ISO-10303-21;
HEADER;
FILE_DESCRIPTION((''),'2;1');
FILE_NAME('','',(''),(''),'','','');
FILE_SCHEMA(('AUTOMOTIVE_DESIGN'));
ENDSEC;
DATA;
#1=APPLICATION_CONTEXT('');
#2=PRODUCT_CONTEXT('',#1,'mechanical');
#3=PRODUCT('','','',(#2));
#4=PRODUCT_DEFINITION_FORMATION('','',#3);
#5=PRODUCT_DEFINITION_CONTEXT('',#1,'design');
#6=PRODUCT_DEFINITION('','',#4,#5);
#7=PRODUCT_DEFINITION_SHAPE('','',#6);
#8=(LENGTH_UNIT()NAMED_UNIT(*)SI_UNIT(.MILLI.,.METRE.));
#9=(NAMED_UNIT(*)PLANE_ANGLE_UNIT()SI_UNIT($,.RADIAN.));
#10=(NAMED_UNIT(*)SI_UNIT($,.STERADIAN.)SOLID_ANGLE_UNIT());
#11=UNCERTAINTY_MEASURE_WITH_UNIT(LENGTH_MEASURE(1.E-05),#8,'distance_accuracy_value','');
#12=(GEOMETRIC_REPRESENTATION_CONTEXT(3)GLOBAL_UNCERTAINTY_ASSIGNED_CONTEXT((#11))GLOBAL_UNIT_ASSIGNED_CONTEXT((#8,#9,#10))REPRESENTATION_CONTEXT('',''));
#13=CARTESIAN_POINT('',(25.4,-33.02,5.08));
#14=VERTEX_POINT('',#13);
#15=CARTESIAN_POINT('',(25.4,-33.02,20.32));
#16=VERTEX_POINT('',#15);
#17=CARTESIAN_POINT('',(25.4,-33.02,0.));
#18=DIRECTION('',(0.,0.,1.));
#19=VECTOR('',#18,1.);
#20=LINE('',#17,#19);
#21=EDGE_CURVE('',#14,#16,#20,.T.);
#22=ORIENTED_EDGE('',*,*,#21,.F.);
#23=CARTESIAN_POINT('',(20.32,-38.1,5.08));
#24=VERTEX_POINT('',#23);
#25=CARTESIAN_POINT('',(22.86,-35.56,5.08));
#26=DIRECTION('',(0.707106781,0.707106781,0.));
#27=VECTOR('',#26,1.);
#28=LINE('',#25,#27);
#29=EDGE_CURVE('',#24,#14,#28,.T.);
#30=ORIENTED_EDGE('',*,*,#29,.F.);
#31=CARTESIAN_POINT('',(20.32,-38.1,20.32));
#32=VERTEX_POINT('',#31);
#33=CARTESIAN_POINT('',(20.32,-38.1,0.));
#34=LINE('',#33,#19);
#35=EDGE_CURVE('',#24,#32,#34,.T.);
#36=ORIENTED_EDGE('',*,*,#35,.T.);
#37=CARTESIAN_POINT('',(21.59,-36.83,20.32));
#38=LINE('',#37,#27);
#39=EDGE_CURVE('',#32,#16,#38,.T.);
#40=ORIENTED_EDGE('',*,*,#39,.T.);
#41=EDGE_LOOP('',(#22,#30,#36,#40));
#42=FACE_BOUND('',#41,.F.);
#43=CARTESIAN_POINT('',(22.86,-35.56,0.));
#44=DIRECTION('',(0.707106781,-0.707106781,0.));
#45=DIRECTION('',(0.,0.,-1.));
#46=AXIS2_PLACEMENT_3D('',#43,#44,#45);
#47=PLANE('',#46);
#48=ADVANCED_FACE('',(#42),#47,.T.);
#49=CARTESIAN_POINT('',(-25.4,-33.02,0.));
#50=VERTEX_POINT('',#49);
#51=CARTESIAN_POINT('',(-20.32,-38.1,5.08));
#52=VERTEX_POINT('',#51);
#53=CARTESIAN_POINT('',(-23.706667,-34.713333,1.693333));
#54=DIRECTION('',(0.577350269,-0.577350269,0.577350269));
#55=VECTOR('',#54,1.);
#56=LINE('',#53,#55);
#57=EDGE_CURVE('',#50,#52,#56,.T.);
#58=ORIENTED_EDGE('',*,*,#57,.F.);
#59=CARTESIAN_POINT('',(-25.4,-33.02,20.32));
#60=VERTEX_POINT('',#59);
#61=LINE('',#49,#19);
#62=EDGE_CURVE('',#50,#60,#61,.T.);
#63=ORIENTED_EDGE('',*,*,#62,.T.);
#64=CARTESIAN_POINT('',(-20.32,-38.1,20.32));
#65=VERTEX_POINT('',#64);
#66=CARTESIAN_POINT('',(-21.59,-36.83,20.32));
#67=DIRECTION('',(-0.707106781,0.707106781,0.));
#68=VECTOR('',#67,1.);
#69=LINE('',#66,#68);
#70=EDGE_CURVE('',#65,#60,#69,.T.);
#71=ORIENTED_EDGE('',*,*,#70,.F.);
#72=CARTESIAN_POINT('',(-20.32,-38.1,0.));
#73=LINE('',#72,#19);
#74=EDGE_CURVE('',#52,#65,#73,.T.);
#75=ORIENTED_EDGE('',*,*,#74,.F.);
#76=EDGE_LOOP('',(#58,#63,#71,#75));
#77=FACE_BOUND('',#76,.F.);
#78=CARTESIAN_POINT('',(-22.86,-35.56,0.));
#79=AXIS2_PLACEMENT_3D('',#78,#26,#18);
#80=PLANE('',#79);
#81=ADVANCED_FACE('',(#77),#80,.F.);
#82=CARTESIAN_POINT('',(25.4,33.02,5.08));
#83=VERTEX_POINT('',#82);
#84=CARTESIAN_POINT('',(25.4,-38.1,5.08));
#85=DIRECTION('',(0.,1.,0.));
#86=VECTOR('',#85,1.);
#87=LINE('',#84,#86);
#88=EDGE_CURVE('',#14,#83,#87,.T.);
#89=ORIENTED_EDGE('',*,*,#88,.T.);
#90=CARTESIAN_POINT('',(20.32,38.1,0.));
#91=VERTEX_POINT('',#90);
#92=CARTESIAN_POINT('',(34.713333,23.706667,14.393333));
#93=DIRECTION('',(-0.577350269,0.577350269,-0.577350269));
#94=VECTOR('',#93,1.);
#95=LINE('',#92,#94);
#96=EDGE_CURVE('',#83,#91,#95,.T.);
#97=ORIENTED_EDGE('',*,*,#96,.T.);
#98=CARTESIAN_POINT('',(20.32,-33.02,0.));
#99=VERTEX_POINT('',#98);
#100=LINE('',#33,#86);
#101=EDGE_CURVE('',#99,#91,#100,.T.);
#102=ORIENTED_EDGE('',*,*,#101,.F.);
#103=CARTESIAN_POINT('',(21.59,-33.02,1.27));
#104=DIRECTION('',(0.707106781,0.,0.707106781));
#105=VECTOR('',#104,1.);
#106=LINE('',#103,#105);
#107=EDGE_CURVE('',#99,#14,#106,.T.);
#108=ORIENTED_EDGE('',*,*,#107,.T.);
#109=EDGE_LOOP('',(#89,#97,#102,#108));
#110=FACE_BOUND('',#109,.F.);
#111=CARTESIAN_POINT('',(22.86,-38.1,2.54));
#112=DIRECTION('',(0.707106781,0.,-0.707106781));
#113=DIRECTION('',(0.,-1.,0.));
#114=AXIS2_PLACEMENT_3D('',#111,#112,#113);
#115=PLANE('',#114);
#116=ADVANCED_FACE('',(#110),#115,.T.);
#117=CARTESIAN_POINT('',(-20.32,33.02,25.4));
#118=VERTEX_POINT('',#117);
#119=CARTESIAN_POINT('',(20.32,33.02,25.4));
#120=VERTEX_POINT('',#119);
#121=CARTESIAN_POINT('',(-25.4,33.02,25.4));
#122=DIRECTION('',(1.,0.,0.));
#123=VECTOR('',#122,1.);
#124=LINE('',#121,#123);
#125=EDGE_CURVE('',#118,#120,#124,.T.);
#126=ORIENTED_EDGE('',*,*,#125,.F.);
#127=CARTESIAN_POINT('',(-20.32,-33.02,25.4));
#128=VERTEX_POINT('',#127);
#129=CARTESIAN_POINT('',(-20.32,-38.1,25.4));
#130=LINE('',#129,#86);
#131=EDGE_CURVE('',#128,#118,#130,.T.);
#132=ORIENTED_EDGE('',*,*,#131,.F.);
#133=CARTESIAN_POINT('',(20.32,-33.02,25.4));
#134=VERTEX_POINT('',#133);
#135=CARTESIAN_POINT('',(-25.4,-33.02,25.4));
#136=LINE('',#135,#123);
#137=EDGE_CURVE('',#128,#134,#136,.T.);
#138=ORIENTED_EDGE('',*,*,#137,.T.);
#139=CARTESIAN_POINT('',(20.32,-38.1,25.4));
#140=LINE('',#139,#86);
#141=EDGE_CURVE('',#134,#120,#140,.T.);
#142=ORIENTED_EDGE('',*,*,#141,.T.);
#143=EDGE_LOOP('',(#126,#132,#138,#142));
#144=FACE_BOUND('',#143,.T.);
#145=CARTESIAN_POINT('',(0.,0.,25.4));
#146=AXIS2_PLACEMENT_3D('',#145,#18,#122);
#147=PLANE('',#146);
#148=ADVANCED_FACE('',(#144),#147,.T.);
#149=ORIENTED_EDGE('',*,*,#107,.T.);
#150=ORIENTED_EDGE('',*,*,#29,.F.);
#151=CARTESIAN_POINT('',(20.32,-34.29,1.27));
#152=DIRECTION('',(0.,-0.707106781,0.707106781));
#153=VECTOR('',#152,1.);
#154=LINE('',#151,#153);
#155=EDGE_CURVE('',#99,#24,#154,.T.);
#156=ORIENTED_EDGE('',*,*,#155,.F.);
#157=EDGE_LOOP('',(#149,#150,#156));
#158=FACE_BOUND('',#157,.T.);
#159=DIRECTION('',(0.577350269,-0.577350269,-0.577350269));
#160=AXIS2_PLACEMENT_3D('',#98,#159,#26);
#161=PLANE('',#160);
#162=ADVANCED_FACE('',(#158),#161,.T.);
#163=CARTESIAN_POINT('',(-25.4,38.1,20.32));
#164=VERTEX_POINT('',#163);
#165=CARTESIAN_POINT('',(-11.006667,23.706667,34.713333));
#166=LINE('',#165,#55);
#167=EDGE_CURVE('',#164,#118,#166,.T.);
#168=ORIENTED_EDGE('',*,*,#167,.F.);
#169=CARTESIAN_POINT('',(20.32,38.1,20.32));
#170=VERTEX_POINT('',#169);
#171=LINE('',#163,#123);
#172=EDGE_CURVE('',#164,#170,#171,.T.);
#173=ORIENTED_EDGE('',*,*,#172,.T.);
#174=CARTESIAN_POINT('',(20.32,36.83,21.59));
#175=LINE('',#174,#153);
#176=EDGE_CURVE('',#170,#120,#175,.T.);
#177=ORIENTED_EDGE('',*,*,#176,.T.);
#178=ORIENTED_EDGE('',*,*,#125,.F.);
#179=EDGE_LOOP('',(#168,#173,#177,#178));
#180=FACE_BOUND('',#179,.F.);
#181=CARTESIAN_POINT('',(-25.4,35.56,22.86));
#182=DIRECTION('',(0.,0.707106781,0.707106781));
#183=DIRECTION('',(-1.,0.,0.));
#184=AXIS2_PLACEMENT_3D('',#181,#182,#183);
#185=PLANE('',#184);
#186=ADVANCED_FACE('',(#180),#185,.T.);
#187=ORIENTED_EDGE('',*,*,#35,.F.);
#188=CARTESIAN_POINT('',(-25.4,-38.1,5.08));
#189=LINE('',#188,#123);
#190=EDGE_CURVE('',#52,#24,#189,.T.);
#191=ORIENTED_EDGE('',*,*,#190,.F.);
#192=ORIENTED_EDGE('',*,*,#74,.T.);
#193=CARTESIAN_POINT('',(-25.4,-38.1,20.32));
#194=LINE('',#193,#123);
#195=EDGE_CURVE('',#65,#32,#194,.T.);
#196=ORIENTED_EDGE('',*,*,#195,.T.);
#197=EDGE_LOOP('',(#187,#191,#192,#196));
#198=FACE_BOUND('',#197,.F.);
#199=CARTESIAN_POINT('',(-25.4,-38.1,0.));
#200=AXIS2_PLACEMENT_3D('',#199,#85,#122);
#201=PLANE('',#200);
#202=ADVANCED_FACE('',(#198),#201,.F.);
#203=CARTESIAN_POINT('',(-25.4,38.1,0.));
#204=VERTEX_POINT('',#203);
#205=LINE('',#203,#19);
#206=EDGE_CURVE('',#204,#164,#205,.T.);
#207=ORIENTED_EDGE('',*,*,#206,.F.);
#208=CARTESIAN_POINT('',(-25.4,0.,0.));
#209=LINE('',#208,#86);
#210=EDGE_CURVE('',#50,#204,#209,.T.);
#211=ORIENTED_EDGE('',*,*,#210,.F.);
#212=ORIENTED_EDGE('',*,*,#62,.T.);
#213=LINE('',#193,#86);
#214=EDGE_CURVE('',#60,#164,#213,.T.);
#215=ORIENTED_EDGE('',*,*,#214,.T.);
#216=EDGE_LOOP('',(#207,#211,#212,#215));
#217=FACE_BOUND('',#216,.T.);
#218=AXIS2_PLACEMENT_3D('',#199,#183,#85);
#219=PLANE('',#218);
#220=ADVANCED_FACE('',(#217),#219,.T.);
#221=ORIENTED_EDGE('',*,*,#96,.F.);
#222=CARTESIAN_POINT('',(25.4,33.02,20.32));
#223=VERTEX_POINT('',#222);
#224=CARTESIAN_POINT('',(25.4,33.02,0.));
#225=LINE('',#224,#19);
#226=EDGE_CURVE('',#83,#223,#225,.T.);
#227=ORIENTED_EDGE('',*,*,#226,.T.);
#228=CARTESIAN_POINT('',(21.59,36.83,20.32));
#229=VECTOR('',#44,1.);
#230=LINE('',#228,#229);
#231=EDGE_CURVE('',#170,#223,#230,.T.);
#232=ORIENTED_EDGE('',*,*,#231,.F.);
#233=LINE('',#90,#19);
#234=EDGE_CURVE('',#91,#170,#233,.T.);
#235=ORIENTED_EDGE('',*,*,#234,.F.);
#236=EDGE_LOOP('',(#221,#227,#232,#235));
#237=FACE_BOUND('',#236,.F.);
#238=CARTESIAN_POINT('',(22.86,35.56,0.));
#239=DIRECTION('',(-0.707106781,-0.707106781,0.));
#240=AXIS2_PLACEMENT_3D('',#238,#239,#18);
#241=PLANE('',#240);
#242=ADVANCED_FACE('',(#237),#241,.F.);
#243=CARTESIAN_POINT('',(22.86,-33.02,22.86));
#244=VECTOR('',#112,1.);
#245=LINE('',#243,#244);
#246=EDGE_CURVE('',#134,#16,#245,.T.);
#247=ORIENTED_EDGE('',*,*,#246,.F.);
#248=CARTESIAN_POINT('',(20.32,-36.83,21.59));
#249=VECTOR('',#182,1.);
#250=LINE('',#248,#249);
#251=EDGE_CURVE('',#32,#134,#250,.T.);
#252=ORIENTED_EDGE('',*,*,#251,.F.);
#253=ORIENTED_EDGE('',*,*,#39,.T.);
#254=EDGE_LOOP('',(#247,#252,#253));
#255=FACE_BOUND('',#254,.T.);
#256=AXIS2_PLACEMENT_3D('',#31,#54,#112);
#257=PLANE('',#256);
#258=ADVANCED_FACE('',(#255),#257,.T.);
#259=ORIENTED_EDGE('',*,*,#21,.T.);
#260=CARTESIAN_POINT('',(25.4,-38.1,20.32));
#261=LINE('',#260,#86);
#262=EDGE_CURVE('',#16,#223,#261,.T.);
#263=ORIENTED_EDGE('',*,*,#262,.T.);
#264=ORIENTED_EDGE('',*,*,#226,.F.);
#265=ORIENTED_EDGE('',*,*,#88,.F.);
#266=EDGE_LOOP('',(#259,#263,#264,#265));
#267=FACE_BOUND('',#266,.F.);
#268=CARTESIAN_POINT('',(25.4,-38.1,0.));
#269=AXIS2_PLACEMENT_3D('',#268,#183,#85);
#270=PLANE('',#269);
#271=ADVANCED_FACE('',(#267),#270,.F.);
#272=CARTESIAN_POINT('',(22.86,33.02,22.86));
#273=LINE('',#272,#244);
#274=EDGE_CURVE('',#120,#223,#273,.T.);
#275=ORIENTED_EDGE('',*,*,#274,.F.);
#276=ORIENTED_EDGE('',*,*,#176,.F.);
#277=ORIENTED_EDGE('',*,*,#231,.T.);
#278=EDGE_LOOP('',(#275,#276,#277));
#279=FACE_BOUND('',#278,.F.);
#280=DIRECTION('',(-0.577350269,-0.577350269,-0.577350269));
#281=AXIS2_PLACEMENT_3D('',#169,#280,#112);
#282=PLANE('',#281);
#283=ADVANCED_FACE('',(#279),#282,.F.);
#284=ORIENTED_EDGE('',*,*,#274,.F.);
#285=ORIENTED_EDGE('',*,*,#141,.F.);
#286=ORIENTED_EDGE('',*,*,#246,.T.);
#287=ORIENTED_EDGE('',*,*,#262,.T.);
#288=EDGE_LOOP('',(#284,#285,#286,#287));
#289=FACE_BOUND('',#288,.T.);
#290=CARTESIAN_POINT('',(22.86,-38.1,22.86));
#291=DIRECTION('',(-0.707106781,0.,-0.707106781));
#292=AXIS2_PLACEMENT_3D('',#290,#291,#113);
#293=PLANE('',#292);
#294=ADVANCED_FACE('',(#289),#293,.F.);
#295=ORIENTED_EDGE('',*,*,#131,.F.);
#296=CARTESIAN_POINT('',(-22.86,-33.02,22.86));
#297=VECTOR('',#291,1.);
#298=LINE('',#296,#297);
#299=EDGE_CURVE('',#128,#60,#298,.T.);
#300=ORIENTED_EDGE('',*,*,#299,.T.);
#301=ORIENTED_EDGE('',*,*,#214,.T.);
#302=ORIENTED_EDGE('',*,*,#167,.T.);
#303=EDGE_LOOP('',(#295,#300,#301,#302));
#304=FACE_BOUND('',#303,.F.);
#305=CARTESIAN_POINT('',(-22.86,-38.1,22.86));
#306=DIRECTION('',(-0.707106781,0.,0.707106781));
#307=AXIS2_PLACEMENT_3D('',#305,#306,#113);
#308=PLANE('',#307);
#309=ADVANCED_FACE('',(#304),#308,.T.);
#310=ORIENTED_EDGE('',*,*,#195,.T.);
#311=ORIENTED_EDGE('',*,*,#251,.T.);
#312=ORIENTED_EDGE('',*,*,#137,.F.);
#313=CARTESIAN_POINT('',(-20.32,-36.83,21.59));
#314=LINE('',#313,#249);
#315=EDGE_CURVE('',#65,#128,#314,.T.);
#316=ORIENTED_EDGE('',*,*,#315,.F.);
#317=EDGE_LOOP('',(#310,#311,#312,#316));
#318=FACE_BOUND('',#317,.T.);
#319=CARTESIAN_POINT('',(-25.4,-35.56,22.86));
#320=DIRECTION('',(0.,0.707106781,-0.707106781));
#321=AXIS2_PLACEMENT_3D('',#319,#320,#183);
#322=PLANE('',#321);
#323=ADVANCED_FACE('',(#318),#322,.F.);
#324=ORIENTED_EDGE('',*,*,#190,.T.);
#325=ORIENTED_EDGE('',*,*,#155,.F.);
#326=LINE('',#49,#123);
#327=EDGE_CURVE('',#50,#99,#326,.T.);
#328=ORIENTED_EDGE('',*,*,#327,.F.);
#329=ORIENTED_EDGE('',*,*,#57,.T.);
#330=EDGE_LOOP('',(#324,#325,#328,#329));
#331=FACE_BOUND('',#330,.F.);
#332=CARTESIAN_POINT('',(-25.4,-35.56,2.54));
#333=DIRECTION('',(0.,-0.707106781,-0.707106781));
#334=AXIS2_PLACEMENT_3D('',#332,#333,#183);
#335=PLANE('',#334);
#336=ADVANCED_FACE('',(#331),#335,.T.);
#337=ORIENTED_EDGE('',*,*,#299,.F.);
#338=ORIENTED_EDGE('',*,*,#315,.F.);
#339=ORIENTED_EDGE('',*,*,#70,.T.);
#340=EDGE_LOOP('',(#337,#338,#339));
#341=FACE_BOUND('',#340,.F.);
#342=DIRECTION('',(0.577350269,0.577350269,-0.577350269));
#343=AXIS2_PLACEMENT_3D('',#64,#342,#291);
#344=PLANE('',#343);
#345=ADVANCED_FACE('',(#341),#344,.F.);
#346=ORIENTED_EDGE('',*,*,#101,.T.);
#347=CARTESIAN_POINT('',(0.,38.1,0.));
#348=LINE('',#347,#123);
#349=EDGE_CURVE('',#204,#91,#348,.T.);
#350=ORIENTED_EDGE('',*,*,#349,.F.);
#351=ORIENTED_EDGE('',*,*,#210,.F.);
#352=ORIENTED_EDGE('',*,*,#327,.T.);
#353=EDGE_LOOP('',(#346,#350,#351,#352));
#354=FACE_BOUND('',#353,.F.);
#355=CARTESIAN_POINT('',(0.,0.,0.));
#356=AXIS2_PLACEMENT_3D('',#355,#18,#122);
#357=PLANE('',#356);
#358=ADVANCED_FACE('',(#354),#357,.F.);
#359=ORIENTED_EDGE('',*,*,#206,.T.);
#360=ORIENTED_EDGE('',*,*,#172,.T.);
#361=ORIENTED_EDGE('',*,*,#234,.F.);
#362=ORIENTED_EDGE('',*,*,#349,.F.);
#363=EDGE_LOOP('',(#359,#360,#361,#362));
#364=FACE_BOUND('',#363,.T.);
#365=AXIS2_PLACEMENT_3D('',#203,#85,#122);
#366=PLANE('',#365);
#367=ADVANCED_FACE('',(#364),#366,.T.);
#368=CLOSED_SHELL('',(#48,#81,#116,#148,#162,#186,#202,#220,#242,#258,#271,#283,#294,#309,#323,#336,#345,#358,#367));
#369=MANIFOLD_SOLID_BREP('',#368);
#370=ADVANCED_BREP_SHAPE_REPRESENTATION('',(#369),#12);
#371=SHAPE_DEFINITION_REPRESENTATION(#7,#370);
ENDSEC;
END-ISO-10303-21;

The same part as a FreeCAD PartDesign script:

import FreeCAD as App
import Part
import Sketcher
Q = App.Units.Quantity


def edges_at(feature, points):
    """Names of the edges that pass closest to the given points."""
    edges = feature.Shape.Edges
    near = lambda p: min(range(len(edges)), key=lambda i: edges[i].distToShape(Part.Vertex(*p))[0])
    return sorted({f"Edge{near(p) + 1}" for p in points})


def add_polygon(sketch, points):
    """Adds a closed chain of lines whose ends are joined by coincident constraints."""
    first, n = sketch.GeometryCount, len(points)
    for a, b in zip(points, points[1:] + points[:1]):
        sketch.addGeometry(Part.LineSegment(App.Vector(*a, 0), App.Vector(*b, 0)), False)
    for i in range(n):
        sketch.addConstraint(Sketcher.Constraint("Coincident", first + i, 2, first + (i + 1) % n, 1))

doc = App.newDocument("Part")
body = doc.addObject("PartDesign::Body", "Body")

# Sketch on XY plane
sketch1 = doc.addObject("Sketcher::SketchObject", "Sketch")
body.addObject(sketch1)
sketch1.AttachmentSupport = (doc.XY_Plane, [""])
sketch1.MapMode = "FlatFace"
add_polygon(sketch1, [(-25, 38), (-25, -38), (25, -38), (25, 38)])  # lines 0-3
sketch1.addConstraint([
    Sketcher.Constraint("Vertical", 0),
    Sketcher.Constraint("Horizontal", 1),
    Sketcher.Constraint("Vertical", 2),
    Sketcher.Constraint("Horizontal", 3),
    Sketcher.Constraint("Symmetric", 0, 2, 2, 2, -1, 1),
    Sketcher.Constraint("DistanceX", 1, 1, 1, 2, Q("2 in")),
    Sketcher.Constraint("DistanceY", 0, 2, 0, 1, Q("3 in")),
])
pad1 = doc.addObject("PartDesign::Pad", "Pad")
body.addObject(pad1)
pad1.Profile = sketch1
pad1.Length = Q("1 in")
doc.recompute()

chamfer = doc.addObject("PartDesign::Chamfer", "Chamfer")
body.addObject(chamfer)
chamfer.Base = (pad1, edges_at(pad1, [
    (25.4, 0, 25.4),
    (0, 38.1, 25.4),
    (-25.4, 0, 25.4),
    (0, -38.1, 25.4),
    (-25.4, -38.1, 12.7),
    (25.4, -38.1, 12.7),
    (0, -38.1, 0),
    (25.4, 38.1, 12.7),
    (25.4, 0, 0),
]))
chamfer.Size = Q("0.2 in")

doc.recompute()
